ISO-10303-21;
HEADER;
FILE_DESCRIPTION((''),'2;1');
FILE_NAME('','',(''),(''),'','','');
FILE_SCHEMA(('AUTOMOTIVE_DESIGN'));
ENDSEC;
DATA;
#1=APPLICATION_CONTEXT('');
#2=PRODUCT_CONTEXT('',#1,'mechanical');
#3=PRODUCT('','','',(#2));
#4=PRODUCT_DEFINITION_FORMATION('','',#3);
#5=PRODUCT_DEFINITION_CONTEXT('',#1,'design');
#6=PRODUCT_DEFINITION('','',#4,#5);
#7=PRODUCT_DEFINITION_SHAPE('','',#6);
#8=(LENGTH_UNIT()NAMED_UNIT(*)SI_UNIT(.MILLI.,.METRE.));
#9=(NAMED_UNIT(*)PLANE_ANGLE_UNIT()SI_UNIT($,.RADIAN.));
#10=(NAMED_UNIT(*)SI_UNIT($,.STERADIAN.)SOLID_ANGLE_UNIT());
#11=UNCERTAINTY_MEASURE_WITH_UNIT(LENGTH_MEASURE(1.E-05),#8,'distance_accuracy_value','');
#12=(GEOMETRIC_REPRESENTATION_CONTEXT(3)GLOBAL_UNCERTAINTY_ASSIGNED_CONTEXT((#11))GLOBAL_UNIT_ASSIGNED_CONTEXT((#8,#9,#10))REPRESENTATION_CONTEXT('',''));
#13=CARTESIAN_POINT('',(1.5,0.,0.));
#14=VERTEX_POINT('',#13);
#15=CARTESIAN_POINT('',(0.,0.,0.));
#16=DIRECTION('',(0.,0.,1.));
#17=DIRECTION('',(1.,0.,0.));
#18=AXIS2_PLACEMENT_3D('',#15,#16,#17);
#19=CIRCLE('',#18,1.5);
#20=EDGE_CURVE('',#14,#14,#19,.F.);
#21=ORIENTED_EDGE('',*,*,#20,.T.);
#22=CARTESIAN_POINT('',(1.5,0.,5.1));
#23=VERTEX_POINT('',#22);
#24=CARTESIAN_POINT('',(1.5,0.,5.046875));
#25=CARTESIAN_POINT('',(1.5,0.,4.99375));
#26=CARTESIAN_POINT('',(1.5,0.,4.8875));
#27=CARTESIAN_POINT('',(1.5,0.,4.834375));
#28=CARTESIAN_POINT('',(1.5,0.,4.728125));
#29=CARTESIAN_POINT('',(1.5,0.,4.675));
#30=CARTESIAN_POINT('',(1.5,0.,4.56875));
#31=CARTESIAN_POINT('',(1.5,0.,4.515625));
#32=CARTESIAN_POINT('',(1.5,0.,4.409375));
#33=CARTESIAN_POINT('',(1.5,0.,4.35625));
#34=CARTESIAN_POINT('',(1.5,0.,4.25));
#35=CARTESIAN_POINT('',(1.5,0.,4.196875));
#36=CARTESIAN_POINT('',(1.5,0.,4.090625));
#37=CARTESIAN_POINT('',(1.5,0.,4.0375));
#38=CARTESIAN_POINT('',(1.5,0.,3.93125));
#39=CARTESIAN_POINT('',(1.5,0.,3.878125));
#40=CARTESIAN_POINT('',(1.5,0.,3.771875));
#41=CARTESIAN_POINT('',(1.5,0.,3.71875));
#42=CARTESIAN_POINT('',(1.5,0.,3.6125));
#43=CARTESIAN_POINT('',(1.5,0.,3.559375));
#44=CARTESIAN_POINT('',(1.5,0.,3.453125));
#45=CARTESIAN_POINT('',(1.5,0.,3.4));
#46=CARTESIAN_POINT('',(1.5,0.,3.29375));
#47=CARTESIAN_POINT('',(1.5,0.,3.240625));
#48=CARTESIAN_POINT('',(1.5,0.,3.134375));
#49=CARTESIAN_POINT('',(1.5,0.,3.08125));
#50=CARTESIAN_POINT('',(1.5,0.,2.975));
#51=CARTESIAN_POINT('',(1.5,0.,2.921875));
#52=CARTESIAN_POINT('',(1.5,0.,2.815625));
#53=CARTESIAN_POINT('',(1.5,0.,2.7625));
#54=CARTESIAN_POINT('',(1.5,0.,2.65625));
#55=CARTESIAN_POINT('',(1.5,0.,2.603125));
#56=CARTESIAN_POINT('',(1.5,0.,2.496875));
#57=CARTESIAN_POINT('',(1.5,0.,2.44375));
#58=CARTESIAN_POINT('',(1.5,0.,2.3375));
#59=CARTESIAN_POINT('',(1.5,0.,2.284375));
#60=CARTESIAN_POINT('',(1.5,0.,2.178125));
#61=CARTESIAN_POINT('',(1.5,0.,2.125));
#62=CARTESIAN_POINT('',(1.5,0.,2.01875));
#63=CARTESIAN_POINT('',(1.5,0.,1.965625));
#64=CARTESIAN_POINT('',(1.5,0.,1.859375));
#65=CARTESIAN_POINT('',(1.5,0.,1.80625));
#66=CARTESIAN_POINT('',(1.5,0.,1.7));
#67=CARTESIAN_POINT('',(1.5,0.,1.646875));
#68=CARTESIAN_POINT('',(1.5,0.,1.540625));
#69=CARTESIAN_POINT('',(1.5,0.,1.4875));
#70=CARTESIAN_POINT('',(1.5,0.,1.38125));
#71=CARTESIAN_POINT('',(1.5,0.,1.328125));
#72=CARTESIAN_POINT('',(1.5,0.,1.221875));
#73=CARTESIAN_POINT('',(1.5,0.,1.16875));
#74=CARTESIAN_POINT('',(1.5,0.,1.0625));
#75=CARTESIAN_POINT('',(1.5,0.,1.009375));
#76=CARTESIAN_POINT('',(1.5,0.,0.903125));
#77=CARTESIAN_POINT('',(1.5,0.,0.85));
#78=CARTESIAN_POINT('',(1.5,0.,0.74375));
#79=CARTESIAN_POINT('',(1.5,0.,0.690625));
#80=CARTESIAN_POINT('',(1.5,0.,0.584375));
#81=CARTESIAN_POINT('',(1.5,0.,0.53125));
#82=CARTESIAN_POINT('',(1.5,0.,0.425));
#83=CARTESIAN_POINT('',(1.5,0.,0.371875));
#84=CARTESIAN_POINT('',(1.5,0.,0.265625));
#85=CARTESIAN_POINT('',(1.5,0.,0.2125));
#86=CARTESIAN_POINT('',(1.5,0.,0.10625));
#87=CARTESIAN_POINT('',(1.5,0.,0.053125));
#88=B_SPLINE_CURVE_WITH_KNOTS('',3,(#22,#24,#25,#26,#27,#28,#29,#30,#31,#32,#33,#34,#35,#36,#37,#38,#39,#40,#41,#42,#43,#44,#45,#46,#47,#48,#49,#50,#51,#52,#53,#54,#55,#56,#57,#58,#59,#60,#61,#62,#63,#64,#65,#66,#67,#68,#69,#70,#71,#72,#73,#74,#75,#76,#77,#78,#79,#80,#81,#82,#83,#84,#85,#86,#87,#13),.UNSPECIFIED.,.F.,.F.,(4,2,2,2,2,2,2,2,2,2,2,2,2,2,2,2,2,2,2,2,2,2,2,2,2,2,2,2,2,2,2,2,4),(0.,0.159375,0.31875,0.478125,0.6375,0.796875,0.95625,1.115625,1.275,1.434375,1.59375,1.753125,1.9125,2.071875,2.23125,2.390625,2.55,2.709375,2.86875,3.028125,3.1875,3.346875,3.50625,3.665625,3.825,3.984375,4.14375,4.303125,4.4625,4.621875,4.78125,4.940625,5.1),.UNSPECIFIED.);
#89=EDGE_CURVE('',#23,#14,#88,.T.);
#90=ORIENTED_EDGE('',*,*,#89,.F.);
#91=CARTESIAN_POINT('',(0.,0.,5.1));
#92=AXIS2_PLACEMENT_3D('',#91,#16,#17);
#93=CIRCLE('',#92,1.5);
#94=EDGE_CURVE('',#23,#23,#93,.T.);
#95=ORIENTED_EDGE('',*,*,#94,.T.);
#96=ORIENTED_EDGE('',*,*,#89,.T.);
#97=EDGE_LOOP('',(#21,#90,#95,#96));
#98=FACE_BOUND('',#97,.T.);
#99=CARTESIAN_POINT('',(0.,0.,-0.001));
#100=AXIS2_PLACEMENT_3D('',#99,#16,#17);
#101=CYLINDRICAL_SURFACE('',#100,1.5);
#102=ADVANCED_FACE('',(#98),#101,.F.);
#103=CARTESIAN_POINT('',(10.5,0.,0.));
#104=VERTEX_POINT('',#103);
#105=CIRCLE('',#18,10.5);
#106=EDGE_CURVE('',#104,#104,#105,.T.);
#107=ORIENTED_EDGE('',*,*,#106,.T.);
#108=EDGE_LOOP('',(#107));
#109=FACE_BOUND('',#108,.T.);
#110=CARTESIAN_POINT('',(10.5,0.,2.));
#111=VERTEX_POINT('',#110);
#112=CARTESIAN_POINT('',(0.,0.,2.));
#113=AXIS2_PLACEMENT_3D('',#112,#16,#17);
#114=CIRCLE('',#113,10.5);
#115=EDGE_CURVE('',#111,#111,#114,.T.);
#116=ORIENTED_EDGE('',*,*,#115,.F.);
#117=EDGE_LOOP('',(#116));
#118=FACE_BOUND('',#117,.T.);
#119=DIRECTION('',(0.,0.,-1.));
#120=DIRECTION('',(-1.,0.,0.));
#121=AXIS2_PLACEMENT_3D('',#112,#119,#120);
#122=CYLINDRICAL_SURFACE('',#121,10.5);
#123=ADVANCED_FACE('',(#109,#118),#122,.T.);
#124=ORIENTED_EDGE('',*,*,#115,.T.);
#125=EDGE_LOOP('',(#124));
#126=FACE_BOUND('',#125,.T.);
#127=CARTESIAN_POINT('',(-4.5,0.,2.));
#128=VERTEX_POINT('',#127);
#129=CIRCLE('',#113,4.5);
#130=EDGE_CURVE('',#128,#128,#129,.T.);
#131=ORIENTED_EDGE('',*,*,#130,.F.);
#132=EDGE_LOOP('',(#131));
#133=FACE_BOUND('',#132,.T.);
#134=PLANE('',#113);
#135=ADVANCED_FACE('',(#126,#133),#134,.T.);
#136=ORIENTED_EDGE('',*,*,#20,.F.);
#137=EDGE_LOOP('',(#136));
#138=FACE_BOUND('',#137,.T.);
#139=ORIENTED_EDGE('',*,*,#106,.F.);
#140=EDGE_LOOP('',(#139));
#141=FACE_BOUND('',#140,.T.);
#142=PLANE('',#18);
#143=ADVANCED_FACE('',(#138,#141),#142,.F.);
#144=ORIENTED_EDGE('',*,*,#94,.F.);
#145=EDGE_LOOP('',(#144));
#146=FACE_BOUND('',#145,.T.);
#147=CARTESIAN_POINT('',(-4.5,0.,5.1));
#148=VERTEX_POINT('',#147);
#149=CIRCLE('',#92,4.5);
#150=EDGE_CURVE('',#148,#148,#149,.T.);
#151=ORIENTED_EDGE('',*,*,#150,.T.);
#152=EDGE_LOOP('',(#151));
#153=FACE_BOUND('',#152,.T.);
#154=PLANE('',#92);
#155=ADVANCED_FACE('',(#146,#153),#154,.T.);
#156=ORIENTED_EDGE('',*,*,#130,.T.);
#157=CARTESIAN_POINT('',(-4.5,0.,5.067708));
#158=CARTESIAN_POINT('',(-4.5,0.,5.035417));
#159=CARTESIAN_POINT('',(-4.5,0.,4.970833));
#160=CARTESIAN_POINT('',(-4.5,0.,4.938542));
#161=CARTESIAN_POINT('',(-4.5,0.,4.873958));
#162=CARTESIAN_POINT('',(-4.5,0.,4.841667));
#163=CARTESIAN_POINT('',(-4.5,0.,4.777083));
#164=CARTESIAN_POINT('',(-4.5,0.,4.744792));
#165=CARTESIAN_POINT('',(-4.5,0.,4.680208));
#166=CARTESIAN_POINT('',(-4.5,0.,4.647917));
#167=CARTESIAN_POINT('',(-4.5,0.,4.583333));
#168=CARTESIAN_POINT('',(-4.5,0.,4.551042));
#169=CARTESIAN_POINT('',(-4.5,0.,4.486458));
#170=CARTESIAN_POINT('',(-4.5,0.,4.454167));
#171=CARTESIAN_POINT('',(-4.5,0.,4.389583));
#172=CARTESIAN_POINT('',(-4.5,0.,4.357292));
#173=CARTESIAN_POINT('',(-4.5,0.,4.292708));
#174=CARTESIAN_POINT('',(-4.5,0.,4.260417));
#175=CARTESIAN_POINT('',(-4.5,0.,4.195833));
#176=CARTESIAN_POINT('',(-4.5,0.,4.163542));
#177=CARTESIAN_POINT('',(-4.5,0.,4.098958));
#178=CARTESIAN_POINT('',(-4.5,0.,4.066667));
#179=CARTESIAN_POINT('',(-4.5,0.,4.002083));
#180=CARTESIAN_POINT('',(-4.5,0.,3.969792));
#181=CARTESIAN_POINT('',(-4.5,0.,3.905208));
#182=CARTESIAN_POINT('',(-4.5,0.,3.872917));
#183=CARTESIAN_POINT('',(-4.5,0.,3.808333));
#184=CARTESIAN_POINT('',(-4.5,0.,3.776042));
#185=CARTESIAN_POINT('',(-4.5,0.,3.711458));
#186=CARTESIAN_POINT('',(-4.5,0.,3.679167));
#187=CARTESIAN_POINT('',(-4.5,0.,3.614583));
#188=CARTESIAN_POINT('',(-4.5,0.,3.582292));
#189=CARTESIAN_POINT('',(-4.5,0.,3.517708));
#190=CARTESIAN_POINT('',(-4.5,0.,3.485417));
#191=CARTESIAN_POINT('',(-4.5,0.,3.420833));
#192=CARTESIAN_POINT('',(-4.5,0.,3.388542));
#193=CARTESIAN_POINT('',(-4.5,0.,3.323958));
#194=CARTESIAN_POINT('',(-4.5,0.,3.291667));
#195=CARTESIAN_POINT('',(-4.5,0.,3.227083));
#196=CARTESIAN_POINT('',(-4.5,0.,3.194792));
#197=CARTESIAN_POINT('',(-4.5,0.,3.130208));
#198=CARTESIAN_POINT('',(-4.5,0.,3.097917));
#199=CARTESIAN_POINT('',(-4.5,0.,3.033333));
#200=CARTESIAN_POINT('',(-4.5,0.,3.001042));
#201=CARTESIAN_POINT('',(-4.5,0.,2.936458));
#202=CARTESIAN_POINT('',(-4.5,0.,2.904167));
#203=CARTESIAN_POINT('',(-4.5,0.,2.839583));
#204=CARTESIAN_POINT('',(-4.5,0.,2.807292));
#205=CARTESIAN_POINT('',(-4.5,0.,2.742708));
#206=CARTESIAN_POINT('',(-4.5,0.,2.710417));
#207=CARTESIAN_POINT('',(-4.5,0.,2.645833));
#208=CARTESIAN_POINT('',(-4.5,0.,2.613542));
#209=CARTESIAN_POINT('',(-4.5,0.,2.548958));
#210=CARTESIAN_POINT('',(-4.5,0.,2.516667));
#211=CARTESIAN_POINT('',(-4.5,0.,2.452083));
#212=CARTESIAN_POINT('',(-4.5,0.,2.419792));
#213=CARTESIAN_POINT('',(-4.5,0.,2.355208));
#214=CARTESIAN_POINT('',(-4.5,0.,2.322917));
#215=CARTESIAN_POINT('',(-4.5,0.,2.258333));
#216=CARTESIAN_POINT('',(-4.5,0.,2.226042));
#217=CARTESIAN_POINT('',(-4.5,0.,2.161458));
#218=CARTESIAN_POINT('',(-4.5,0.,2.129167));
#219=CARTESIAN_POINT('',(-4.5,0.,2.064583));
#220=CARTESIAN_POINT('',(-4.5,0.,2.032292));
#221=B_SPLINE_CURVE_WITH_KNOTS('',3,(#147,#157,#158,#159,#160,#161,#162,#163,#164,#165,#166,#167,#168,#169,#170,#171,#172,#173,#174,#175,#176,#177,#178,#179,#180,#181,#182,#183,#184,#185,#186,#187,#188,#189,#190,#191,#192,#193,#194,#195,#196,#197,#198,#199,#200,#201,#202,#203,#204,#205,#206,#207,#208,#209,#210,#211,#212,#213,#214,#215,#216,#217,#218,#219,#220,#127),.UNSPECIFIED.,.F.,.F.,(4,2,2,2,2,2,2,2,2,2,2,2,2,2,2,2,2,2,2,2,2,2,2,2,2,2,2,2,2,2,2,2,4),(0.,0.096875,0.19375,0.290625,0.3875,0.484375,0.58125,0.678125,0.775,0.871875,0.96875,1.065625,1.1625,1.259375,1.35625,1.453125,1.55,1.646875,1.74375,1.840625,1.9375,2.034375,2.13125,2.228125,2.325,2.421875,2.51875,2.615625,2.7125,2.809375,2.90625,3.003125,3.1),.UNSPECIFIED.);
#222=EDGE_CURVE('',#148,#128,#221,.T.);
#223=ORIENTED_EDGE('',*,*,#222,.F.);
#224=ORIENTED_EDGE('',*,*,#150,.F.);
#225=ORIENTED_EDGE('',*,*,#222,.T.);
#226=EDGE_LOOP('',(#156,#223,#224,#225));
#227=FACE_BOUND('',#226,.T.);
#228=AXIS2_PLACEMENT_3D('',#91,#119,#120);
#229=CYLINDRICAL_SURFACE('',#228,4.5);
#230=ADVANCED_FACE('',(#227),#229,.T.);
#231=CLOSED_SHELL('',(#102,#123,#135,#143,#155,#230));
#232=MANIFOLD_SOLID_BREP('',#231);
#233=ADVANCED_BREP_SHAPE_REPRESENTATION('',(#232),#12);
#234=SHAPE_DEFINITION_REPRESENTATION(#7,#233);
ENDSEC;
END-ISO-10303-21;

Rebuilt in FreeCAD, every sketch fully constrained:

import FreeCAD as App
import Part
import Sketcher
from FreeCAD import Vector
Q = App.Units.Quantity

doc = App.newDocument("Part")
params = doc.addObject("Spreadsheet::Sheet", "Params")
for row, (alias, value) in enumerate([
    ("sketch1_diameter", "21 mm"),
    ("pad1_length", "2 mm"),
    ("sketch2_diameter", "9 mm"),
    ("pad2_length", "3.1 mm"),
    ("sketch3_diameter", "3 mm"),
], start=1):
    params.set(f"A{row}", alias)
    params.set(f"B{row}", "=" + value)
    params.setAlias(f"B{row}", alias)

body = doc.addObject("PartDesign::Body", "Body")

sketch1 = doc.addObject("Sketcher::SketchObject", "Sketch")
body.addObject(sketch1)
sketch1.AttachmentSupport = (doc.XY_Plane, [""])
sketch1.MapMode = "FlatFace"
sketch1.addGeometry(Part.Circle(Vector(0, 0, 0), Vector(0, 0, 1), 10.5), False)
sketch1.addConstraint([
    Sketcher.Constraint("Coincident", 0, 3, -1, 1),
    Sketcher.Constraint("Diameter", 0, Q("21 mm")),
])
sketch1.setExpression("Constraints[1]", "Params.sketch1_diameter")
pad1 = doc.addObject("PartDesign::Pad", "Pad")
body.addObject(pad1)
pad1.Profile = sketch1
pad1.setExpression("Length", "Params.pad1_length")

sketch2 = doc.addObject("Sketcher::SketchObject", "Sketch001")
body.addObject(sketch2)
sketch2.AttachmentSupport = (doc.XY_Plane, [""])
sketch2.MapMode = "FlatFace"
sketch2.AttachmentOffset = App.Placement(Vector(0, 0, 2), App.Rotation())
sketch2.addGeometry(Part.Circle(Vector(0, 0, 0), Vector(0, 0, 1), 4.5), False)
sketch2.addConstraint([
    Sketcher.Constraint("Coincident", 0, 3, -1, 1),
    Sketcher.Constraint("Diameter", 0, Q("9 mm")),
])
sketch2.setExpression("Constraints[1]", "Params.sketch2_diameter")
pad2 = doc.addObject("PartDesign::Pad", "Pad001")
body.addObject(pad2)
pad2.Profile = sketch2
pad2.setExpression("Length", "Params.pad2_length")

sketch3 = doc.addObject("Sketcher::SketchObject", "Sketch002")
body.addObject(sketch3)
sketch3.AttachmentSupport = (doc.XY_Plane, [""])
sketch3.MapMode = "FlatFace"
sketch3.AttachmentOffset = App.Placement(Vector(0, 0, 5.1), App.Rotation())
sketch3.addGeometry(Part.Circle(Vector(0, 0, 0), Vector(0, 0, 1), 1.5), False)
sketch3.addConstraint([
    Sketcher.Constraint("Coincident", 0, 3, -1, 1),
    Sketcher.Constraint("Diameter", 0, Q("3 mm")),
])
sketch3.setExpression("Constraints[1]", "Params.sketch3_diameter")
pocket1 = doc.addObject("PartDesign::Pocket", "Pocket")
body.addObject(pocket1)
pocket1.Profile = sketch3
pocket1.Type = "UpToFirst"

doc.recompute()
